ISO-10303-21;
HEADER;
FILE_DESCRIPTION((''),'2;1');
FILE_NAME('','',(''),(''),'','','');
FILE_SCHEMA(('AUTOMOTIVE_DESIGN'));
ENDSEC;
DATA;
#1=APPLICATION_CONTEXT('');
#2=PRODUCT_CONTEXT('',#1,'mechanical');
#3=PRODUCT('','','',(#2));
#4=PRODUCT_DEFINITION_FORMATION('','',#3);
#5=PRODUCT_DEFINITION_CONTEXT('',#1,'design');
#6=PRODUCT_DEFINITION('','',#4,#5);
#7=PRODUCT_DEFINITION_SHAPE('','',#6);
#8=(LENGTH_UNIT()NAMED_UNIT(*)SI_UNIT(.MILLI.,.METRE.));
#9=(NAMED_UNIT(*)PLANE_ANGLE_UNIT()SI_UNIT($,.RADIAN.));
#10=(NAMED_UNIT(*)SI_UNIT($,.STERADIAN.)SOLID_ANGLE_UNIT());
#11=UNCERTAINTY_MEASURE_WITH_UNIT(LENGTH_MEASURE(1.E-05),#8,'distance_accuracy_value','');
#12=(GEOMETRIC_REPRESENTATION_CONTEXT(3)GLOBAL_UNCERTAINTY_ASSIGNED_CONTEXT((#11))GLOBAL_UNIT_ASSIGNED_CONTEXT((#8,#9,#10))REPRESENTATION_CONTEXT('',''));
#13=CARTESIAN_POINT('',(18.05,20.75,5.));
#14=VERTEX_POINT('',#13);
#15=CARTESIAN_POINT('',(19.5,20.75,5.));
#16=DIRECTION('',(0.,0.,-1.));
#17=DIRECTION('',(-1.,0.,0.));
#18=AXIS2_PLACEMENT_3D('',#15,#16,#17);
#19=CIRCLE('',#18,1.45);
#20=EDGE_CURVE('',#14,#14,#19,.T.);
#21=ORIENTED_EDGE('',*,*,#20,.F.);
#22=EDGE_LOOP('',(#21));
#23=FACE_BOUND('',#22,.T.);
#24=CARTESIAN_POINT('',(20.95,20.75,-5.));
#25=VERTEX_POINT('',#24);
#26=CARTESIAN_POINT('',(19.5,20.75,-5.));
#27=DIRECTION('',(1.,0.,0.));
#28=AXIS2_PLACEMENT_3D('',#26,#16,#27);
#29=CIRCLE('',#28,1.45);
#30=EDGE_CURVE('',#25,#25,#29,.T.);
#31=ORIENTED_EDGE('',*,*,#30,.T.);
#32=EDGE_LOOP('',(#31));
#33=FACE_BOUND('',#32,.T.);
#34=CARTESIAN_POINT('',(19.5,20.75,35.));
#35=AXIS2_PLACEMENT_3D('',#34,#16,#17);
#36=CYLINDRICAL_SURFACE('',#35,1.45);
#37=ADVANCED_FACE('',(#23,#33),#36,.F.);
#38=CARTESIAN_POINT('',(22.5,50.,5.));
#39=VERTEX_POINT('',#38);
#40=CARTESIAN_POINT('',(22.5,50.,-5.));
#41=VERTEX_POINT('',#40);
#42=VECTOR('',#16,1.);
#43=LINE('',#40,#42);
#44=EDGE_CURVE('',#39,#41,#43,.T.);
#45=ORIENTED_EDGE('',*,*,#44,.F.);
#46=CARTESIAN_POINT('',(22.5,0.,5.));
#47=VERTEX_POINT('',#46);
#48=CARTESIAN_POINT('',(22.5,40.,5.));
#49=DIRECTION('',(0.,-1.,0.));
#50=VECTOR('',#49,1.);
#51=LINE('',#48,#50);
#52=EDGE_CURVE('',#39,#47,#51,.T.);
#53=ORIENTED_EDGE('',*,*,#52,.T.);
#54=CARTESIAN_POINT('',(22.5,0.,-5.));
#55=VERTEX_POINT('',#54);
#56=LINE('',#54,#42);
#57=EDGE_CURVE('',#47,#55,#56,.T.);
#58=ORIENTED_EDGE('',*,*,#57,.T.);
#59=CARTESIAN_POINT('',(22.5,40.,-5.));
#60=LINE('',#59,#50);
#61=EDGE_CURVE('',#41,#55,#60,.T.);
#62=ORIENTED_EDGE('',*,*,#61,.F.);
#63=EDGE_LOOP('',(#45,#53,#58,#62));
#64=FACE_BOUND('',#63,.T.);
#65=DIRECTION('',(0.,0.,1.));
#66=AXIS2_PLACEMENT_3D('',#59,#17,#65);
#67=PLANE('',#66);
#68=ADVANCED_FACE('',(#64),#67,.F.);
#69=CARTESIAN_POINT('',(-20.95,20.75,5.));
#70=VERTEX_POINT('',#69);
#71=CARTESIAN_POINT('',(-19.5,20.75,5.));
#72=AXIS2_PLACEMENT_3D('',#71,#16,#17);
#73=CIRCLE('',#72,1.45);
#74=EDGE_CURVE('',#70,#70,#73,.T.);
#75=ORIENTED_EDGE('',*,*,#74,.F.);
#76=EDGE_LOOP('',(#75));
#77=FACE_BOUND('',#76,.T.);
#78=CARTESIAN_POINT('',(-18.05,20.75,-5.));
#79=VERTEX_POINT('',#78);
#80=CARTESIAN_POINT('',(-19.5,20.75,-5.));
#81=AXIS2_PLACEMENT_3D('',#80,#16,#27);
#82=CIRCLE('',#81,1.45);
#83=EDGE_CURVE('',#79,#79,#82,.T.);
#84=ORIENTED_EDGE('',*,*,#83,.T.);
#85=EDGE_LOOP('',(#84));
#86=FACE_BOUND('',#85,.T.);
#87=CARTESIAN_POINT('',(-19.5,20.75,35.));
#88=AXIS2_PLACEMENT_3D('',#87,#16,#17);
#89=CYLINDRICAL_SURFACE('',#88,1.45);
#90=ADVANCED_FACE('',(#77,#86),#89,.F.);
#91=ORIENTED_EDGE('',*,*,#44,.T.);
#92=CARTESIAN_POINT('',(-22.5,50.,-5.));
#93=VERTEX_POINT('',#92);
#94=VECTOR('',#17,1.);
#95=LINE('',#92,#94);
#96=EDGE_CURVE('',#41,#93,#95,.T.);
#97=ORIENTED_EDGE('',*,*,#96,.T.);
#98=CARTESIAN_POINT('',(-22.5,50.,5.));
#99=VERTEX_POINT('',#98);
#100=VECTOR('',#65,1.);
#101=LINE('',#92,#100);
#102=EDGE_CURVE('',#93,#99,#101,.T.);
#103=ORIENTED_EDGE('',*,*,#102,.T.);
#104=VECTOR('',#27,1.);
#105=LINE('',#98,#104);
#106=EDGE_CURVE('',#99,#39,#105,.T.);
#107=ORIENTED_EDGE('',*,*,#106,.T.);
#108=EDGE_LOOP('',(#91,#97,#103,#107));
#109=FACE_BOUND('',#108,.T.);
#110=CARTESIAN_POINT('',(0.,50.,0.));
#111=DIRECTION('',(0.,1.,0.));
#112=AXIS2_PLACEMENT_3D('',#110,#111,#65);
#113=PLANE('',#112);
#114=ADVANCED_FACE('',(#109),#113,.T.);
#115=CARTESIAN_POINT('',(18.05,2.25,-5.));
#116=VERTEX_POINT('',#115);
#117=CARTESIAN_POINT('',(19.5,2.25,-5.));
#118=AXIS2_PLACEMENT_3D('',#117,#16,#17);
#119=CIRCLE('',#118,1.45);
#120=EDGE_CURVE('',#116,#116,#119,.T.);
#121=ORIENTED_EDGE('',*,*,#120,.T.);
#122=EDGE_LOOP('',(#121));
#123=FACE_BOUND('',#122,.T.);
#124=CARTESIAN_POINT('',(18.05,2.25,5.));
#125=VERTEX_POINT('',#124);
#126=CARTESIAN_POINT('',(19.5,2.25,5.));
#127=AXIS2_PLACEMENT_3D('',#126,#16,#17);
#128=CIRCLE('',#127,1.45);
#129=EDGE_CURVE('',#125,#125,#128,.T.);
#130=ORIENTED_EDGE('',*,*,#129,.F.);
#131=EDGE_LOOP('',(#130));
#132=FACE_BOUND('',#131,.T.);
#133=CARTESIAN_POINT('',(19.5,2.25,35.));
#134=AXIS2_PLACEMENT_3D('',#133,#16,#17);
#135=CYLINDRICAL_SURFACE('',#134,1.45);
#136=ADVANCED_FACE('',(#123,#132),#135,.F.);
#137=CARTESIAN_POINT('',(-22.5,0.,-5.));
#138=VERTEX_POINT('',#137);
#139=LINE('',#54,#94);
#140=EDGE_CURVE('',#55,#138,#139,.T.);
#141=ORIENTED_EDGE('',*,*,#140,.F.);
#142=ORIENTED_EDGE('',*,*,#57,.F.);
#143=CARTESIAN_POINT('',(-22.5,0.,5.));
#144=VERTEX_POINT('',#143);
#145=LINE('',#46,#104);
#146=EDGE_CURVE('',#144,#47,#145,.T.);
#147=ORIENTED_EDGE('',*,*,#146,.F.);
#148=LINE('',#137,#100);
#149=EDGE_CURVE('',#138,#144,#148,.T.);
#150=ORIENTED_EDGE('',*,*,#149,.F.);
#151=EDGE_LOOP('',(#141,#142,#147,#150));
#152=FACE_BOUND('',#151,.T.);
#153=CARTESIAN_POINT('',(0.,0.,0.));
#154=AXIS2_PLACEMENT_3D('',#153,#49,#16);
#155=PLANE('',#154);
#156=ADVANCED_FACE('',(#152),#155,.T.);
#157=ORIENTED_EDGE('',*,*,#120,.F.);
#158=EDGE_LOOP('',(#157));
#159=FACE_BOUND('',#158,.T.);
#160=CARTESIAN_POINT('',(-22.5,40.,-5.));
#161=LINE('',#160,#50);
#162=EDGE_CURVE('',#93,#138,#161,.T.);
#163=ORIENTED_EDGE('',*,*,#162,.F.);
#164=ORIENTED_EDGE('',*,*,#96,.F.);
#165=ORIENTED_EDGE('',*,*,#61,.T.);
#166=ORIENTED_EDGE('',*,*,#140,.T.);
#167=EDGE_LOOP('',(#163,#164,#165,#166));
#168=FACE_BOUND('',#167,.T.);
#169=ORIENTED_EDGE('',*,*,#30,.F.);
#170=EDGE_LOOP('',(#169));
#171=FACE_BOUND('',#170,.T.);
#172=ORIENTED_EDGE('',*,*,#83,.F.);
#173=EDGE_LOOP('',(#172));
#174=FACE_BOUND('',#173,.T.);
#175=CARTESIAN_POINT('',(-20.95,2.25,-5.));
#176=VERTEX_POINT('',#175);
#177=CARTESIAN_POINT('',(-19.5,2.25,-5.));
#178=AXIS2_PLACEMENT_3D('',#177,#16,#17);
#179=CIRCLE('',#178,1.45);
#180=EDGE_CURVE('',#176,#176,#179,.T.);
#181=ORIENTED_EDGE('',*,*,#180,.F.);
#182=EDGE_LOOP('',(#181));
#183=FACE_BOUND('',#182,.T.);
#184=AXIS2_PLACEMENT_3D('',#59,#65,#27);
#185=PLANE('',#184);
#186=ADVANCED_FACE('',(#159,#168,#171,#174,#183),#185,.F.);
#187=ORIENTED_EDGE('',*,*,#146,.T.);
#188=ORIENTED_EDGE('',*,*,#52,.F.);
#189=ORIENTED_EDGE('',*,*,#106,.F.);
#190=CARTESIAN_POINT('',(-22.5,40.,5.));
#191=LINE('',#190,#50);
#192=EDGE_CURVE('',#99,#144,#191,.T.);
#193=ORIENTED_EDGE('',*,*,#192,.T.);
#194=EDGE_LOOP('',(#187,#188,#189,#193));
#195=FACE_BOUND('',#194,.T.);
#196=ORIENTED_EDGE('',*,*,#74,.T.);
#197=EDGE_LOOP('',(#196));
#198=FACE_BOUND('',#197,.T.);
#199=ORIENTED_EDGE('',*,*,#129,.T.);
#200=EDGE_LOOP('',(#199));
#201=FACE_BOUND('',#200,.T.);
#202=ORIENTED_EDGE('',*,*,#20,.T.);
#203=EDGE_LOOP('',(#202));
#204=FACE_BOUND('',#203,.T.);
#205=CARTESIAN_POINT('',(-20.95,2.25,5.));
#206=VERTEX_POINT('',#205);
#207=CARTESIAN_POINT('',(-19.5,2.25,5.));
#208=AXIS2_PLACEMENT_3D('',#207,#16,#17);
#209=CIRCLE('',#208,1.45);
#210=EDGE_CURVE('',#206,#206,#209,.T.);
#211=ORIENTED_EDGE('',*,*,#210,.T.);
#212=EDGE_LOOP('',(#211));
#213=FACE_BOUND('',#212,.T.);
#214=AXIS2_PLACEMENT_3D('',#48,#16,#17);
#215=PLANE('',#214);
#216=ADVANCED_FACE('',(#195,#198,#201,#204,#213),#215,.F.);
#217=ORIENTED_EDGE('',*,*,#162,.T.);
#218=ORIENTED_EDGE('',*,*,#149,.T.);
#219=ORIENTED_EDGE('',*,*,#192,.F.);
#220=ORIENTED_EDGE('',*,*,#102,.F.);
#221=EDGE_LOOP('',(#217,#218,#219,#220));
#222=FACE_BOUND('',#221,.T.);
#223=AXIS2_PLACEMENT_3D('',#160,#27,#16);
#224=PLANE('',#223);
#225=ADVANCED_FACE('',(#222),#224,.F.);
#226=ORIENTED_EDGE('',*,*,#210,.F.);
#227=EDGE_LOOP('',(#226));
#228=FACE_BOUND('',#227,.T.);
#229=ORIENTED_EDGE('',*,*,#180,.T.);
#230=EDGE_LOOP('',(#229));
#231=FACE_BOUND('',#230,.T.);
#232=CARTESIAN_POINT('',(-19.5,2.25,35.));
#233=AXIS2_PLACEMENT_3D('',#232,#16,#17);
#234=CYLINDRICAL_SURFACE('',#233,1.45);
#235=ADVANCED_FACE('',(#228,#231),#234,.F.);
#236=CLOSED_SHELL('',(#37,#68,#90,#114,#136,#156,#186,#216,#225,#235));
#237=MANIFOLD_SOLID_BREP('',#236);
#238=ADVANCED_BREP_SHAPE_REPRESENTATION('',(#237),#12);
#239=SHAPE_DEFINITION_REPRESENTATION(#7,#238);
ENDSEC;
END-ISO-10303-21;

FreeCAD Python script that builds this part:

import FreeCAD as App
import Part
import Sketcher

V = App.Vector

doc = App.newDocument("Part")
body = doc.addObject("PartDesign::Body", "Body")

sketch1 = body.newObject("Sketcher::SketchObject", "Sketch")
sketch1.AttachmentSupport = (doc.getObject("XZ_Plane"), [""])
sketch1.MapMode = "FlatFace"
sketch1.addGeometry(Part.LineSegment(V(-22, -5, 0), V(-22, 5, 0)), False)
sketch1.addGeometry(Part.LineSegment(V(-22, 5, 0), V(22, 5, 0)), False)
sketch1.addGeometry(Part.LineSegment(V(22, 5, 0), V(22, -5, 0)), False)
sketch1.addGeometry(Part.LineSegment(V(22, -5, 0), V(-22, -5, 0)), False)
sketch1.addConstraint(Sketcher.Constraint("Coincident", 0, 2, 1, 1))
sketch1.addConstraint(Sketcher.Constraint("Coincident", 1, 2, 2, 1))
sketch1.addConstraint(Sketcher.Constraint("Coincident", 2, 2, 3, 1))
sketch1.addConstraint(Sketcher.Constraint("Coincident", 3, 2, 0, 1))
sketch1.addConstraint(Sketcher.Constraint("Vertical", 0))
sketch1.addConstraint(Sketcher.Constraint("Horizontal", 1))
sketch1.addConstraint(Sketcher.Constraint("Vertical", 2))
sketch1.addConstraint(Sketcher.Constraint("Horizontal", 3))
sketch1.addConstraint(Sketcher.Constraint("Symmetric", 0, 2, 2, 2, -1, 1))
sketch1.addConstraint(Sketcher.Constraint("DistanceX", 1, 1, 1, 2, 45.0))
sketch1.addConstraint(Sketcher.Constraint("DistanceY", 0, 1, 0, 2, 10.0))
pad1 = body.newObject("PartDesign::Pad", "Pad")
pad1.Profile = sketch1
pad1.Length = 40
pad1.Reversed = True

sketch2 = body.newObject("Sketcher::SketchObject", "Sketch001")
sketch2.AttachmentSupport = (doc.getObject("XY_Plane"), [""])
sketch2.MapMode = "FlatFace"
sketch2.AttachmentOffset = App.Placement(V(0, 0, -5), App.Rotation())
sketch2.addGeometry(Part.Circle(V(-19.5, 2.2, 0), V(0, 0, 1), 1.4), False)
sketch2.addGeometry(Part.Circle(V(19.5, 2.2, 0), V(0, 0, 1), 1.4), False)
sketch2.addGeometry(Part.Circle(V(19.5, 20.8, 0), V(0, 0, 1), 1.4), False)
sketch2.addGeometry(Part.Circle(V(-19.5, 20.8, 0), V(0, 0, 1), 1.4), False)
sketch2.addConstraint(Sketcher.Constraint("Equal", 0, 1))
sketch2.addConstraint(Sketcher.Constraint("Equal", 1, 2))
sketch2.addConstraint(Sketcher.Constraint("Equal", 2, 3))
sketch2.addConstraint(Sketcher.Constraint("Symmetric", 0, 3, 1, 3, -2))
sketch2.addConstraint(Sketcher.Constraint("Symmetric", 2, 3, 3, 3, -2))
sketch2.addConstraint(Sketcher.Constraint("Vertical", 1, 3, 2, 3))
sketch2.addConstraint(Sketcher.Constraint("Diameter", 0, 2.9))
sketch2.addConstraint(Sketcher.Constraint("DistanceX", 0, 3, 1, 3, 39.0))
sketch2.addConstraint(Sketcher.Constraint("DistanceY", 1, 3, 2, 3, 18.5))
sketch2.addConstraint(Sketcher.Constraint("DistanceY", -1, 1, 0, 3, 2.25))
pocket1 = body.newObject("PartDesign::Pocket", "Pocket")
pocket1.Profile = sketch2
pocket1.Length = 40
pocket1.Reversed = True

sketch3 = body.newObject("Sketcher::SketchObject", "Sketch002")
sketch3.AttachmentSupport = (doc.getObject("XZ_Plane"), [""])
sketch3.MapMode = "FlatFace"
sketch3.AttachmentOffset = App.Placement(V(0, 0, -40), App.Rotation())
sketch3.addGeometry(Part.LineSegment(V(-22, -5, 0), V(-22, 5, 0)), False)
sketch3.addGeometry(Part.LineSegment(V(-22, 5, 0), V(22, 5, 0)), False)
sketch3.addGeometry(Part.LineSegment(V(22, 5, 0), V(22, -5, 0)), False)
sketch3.addGeometry(Part.LineSegment(V(22, -5, 0), V(-22, -5, 0)), False)
sketch3.addConstraint(Sketcher.Constraint("Coincident", 0, 2, 1, 1))
sketch3.addConstraint(Sketcher.Constraint("Coincident", 1, 2, 2, 1))
sketch3.addConstraint(Sketcher.Constraint("Coincident", 2, 2, 3, 1))
sketch3.addConstraint(Sketcher.Constraint("Coincident", 3, 2, 0, 1))
sketch3.addConstraint(Sketcher.Constraint("Vertical", 0))
sketch3.addConstraint(Sketcher.Constraint("Horizontal", 1))
sketch3.addConstraint(Sketcher.Constraint("Vertical", 2))
sketch3.addConstraint(Sketcher.Constraint("Horizontal", 3))
sketch3.addConstraint(Sketcher.Constraint("Symmetric", 0, 2, 2, 2, -1, 1))
sketch3.addConstraint(Sketcher.Constraint("DistanceX", 1, 1, 1, 2, 45.0))
sketch3.addConstraint(Sketcher.Constraint("DistanceY", 0, 1, 0, 2, 10.0))
pad2 = body.newObject("PartDesign::Pad", "Pad001")
pad2.Profile = sketch3
pad2.Length = 10
pad2.Reversed = True

doc.recompute()
